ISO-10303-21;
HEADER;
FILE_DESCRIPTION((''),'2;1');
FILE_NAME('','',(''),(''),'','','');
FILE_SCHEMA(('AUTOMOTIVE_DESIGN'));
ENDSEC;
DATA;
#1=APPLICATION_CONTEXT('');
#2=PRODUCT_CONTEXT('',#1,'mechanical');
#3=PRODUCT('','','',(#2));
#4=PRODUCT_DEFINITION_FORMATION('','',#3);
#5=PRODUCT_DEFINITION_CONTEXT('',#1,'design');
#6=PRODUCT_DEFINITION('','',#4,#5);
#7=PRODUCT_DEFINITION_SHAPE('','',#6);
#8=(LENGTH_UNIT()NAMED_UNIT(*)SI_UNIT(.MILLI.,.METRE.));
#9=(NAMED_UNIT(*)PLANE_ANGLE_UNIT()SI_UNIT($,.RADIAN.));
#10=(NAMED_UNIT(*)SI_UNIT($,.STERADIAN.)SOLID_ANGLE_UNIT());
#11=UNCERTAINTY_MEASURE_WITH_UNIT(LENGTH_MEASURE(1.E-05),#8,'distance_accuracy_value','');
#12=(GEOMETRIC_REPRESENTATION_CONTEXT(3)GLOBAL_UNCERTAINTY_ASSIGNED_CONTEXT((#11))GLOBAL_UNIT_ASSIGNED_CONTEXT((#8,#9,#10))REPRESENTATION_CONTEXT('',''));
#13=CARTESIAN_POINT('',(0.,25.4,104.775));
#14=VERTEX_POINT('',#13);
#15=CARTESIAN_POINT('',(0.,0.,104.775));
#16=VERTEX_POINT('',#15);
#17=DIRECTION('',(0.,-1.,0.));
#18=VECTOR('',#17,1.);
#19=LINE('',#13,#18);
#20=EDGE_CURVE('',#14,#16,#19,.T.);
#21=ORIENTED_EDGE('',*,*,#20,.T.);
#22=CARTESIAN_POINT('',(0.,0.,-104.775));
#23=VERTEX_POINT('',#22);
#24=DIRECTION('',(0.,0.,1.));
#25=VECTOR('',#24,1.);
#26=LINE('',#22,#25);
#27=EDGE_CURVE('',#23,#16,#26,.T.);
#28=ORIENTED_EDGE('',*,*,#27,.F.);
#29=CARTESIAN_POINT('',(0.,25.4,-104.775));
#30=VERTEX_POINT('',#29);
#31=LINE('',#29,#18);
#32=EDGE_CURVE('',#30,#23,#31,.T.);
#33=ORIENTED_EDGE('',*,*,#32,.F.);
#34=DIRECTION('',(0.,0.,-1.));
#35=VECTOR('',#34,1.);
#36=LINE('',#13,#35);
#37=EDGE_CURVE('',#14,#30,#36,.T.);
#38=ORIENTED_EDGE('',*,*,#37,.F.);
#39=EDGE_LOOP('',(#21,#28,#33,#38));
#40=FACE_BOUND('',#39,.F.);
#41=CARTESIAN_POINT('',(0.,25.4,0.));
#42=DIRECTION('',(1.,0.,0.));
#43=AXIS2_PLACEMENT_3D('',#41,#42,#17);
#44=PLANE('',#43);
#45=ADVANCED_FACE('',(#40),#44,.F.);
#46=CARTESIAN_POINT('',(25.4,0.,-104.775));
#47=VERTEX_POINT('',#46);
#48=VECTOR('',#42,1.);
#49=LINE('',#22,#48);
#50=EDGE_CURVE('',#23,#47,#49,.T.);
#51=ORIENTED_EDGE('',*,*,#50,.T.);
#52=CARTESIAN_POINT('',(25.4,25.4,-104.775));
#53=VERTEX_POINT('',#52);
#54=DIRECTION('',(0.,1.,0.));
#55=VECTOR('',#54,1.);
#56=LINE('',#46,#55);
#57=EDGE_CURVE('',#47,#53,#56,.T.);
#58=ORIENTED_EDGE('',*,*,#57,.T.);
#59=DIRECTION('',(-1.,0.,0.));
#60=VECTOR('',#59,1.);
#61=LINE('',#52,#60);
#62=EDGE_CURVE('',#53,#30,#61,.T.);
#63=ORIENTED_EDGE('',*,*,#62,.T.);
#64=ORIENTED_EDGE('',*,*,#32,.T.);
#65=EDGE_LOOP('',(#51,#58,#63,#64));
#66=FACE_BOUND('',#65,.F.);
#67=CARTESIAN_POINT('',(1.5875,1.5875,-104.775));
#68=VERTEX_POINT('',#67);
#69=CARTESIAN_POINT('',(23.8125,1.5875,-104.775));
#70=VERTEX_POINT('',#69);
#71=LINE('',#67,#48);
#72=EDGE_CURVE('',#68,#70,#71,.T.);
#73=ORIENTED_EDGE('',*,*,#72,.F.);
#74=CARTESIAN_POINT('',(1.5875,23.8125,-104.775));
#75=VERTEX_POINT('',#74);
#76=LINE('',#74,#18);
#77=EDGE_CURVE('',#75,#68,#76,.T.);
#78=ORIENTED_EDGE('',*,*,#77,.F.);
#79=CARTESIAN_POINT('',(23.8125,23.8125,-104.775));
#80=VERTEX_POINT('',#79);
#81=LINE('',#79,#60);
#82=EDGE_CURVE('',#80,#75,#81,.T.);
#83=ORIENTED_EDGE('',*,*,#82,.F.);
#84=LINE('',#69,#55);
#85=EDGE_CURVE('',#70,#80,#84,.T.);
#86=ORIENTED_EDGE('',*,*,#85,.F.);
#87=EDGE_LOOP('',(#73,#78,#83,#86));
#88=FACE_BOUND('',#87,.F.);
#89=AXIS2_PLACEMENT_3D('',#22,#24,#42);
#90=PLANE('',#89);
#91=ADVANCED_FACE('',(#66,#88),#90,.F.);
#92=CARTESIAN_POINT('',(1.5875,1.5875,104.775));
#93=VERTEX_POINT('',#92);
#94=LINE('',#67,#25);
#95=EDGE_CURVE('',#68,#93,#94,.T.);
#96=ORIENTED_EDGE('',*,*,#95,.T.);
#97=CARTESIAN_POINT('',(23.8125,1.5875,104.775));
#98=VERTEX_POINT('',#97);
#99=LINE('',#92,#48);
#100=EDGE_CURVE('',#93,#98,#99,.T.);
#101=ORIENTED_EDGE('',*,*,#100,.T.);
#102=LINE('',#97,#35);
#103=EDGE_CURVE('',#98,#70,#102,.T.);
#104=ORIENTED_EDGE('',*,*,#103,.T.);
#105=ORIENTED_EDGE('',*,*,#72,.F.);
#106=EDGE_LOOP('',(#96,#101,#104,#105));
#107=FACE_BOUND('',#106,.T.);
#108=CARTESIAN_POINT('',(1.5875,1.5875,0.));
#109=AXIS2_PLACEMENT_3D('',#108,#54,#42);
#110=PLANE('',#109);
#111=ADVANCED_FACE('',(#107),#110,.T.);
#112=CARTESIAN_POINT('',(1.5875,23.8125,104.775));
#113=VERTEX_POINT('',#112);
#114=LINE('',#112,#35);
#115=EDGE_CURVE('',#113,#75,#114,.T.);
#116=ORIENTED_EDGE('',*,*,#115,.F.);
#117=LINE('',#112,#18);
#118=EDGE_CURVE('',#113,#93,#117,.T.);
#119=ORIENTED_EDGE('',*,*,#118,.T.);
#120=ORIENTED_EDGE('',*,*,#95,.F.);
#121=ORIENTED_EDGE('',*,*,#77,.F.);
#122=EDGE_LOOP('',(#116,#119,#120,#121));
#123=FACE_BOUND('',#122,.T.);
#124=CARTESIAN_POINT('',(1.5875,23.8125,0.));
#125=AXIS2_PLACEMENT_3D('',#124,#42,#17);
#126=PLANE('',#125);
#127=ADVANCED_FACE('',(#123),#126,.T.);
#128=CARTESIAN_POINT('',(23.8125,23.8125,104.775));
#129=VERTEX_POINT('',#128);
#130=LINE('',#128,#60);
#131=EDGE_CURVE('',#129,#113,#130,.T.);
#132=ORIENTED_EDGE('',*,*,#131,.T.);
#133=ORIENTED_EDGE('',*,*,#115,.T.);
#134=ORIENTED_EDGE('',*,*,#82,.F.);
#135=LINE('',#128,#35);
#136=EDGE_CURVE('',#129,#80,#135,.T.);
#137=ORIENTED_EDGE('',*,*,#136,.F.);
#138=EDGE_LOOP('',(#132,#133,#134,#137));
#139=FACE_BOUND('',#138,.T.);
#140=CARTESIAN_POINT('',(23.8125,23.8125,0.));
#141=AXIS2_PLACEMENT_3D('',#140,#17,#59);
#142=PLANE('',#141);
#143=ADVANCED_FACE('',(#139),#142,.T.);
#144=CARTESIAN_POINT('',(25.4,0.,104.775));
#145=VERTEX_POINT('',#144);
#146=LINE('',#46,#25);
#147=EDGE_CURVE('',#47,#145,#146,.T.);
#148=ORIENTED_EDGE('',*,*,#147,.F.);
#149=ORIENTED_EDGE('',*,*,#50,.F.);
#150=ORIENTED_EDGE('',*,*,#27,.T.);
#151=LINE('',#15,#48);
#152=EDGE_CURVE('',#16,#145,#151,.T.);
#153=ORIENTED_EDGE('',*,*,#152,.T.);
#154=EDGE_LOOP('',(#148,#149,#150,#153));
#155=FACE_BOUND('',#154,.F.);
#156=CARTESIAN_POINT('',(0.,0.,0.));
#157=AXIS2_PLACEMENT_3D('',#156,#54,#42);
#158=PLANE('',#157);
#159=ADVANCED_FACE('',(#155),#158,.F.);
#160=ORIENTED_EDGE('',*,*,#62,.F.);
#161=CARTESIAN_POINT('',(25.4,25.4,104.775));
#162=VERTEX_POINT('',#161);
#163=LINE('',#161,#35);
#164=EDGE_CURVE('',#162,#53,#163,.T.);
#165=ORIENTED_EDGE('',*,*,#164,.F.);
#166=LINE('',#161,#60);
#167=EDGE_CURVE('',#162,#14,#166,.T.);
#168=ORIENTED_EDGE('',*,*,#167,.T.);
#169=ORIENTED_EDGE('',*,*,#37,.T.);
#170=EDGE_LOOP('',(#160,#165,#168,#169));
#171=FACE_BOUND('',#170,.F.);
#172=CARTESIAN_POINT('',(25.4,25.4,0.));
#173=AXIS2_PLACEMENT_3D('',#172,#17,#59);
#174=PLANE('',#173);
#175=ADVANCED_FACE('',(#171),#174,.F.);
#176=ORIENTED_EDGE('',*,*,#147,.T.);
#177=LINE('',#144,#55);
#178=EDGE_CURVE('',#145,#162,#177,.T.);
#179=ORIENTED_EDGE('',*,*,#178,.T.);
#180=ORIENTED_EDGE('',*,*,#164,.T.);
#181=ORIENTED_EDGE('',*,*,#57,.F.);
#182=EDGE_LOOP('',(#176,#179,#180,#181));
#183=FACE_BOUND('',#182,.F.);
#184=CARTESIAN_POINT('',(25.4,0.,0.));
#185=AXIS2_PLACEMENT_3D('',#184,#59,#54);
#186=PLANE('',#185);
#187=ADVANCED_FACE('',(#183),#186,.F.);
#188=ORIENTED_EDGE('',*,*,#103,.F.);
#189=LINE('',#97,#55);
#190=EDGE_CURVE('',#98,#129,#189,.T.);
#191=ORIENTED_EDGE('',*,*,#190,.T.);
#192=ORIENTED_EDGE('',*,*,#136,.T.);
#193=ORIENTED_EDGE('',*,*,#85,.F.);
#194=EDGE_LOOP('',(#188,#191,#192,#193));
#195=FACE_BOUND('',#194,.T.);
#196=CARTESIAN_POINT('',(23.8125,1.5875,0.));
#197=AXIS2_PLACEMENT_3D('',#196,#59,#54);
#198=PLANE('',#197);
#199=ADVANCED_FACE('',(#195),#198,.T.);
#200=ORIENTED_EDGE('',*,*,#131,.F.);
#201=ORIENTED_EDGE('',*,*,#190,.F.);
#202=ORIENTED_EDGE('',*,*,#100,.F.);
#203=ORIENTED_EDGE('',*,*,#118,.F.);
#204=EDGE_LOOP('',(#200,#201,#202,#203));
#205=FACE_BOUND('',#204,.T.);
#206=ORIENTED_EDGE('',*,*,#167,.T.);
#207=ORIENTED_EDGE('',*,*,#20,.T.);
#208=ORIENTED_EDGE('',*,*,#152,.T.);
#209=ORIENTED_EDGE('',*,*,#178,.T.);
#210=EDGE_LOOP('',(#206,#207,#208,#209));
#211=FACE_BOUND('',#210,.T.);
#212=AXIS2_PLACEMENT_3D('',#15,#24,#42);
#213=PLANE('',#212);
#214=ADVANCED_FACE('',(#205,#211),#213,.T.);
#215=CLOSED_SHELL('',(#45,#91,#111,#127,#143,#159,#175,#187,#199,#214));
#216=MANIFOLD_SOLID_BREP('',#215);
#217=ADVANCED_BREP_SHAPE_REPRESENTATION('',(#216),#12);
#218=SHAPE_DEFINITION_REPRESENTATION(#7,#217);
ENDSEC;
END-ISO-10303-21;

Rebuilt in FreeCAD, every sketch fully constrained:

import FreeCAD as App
import Part
import Sketcher
from FreeCAD import Vector
Q = App.Units.Quantity


def add_polygon(sketch, points):
    """Adds a closed chain of lines whose ends are joined by coincident constraints."""
    first, n = sketch.GeometryCount, len(points)
    for a, b in zip(points, points[1:] + points[:1]):
        sketch.addGeometry(Part.LineSegment(App.Vector(*a, 0), App.Vector(*b, 0)), False)
    for i in range(n):
        sketch.addConstraint(Sketcher.Constraint("Coincident", first + i, 2, first + (i + 1) % n, 1))

doc = App.newDocument("Part")
body = doc.addObject("PartDesign::Body", "Body")

# Sketch on XY plane
sketch1 = body.newObject("Sketcher::SketchObject", "Sketch")
sketch1.AttachmentSupport = (doc.getObject("XY_Plane"), [""])
sketch1.MapMode = "FlatFace"
add_polygon(sketch1, [(0, 25.4), (0, 0), (25.4, 0), (25.4, 25.4)])  # lines 0-3
add_polygon(sketch1, [(23.8125, 1.5875), (1.5875, 1.5875), (1.5875, 23.8125), (23.8125, 23.8125)])  # lines 4-7
sketch1.addConstraint([
    Sketcher.Constraint("Vertical", 0),
    Sketcher.Constraint("Horizontal", 1),
    Sketcher.Constraint("Vertical", 2),
    Sketcher.Constraint("Horizontal", 3),
    Sketcher.Constraint("Horizontal", 4),
    Sketcher.Constraint("Vertical", 5),
    Sketcher.Constraint("Horizontal", 6),
    Sketcher.Constraint("Vertical", 7),
    Sketcher.Constraint("Coincident", 0, 2, -1, 1),
    Sketcher.Constraint("Equal", 3, 0),
    Sketcher.Constraint("Equal", 6, 5),
    Sketcher.Constraint("DistanceX", 1, 1, 1, 2, Q("1 in")),
    Sketcher.Constraint("DistanceX", -1, 1, 4, 2, Q("0.0625 in")),
    Sketcher.Constraint("DistanceY", -1, 1, 4, 2, Q("0.0625 in")),
    Sketcher.Constraint("DistanceY", 5, 2, 3, 2, Q("0.0625 in")),
])
pad1 = body.newObject("PartDesign::Pad", "Pad")
pad1.Profile = sketch1
pad1.Length = Q("8.25 in")
pad1.Midplane = True

doc.recompute()
